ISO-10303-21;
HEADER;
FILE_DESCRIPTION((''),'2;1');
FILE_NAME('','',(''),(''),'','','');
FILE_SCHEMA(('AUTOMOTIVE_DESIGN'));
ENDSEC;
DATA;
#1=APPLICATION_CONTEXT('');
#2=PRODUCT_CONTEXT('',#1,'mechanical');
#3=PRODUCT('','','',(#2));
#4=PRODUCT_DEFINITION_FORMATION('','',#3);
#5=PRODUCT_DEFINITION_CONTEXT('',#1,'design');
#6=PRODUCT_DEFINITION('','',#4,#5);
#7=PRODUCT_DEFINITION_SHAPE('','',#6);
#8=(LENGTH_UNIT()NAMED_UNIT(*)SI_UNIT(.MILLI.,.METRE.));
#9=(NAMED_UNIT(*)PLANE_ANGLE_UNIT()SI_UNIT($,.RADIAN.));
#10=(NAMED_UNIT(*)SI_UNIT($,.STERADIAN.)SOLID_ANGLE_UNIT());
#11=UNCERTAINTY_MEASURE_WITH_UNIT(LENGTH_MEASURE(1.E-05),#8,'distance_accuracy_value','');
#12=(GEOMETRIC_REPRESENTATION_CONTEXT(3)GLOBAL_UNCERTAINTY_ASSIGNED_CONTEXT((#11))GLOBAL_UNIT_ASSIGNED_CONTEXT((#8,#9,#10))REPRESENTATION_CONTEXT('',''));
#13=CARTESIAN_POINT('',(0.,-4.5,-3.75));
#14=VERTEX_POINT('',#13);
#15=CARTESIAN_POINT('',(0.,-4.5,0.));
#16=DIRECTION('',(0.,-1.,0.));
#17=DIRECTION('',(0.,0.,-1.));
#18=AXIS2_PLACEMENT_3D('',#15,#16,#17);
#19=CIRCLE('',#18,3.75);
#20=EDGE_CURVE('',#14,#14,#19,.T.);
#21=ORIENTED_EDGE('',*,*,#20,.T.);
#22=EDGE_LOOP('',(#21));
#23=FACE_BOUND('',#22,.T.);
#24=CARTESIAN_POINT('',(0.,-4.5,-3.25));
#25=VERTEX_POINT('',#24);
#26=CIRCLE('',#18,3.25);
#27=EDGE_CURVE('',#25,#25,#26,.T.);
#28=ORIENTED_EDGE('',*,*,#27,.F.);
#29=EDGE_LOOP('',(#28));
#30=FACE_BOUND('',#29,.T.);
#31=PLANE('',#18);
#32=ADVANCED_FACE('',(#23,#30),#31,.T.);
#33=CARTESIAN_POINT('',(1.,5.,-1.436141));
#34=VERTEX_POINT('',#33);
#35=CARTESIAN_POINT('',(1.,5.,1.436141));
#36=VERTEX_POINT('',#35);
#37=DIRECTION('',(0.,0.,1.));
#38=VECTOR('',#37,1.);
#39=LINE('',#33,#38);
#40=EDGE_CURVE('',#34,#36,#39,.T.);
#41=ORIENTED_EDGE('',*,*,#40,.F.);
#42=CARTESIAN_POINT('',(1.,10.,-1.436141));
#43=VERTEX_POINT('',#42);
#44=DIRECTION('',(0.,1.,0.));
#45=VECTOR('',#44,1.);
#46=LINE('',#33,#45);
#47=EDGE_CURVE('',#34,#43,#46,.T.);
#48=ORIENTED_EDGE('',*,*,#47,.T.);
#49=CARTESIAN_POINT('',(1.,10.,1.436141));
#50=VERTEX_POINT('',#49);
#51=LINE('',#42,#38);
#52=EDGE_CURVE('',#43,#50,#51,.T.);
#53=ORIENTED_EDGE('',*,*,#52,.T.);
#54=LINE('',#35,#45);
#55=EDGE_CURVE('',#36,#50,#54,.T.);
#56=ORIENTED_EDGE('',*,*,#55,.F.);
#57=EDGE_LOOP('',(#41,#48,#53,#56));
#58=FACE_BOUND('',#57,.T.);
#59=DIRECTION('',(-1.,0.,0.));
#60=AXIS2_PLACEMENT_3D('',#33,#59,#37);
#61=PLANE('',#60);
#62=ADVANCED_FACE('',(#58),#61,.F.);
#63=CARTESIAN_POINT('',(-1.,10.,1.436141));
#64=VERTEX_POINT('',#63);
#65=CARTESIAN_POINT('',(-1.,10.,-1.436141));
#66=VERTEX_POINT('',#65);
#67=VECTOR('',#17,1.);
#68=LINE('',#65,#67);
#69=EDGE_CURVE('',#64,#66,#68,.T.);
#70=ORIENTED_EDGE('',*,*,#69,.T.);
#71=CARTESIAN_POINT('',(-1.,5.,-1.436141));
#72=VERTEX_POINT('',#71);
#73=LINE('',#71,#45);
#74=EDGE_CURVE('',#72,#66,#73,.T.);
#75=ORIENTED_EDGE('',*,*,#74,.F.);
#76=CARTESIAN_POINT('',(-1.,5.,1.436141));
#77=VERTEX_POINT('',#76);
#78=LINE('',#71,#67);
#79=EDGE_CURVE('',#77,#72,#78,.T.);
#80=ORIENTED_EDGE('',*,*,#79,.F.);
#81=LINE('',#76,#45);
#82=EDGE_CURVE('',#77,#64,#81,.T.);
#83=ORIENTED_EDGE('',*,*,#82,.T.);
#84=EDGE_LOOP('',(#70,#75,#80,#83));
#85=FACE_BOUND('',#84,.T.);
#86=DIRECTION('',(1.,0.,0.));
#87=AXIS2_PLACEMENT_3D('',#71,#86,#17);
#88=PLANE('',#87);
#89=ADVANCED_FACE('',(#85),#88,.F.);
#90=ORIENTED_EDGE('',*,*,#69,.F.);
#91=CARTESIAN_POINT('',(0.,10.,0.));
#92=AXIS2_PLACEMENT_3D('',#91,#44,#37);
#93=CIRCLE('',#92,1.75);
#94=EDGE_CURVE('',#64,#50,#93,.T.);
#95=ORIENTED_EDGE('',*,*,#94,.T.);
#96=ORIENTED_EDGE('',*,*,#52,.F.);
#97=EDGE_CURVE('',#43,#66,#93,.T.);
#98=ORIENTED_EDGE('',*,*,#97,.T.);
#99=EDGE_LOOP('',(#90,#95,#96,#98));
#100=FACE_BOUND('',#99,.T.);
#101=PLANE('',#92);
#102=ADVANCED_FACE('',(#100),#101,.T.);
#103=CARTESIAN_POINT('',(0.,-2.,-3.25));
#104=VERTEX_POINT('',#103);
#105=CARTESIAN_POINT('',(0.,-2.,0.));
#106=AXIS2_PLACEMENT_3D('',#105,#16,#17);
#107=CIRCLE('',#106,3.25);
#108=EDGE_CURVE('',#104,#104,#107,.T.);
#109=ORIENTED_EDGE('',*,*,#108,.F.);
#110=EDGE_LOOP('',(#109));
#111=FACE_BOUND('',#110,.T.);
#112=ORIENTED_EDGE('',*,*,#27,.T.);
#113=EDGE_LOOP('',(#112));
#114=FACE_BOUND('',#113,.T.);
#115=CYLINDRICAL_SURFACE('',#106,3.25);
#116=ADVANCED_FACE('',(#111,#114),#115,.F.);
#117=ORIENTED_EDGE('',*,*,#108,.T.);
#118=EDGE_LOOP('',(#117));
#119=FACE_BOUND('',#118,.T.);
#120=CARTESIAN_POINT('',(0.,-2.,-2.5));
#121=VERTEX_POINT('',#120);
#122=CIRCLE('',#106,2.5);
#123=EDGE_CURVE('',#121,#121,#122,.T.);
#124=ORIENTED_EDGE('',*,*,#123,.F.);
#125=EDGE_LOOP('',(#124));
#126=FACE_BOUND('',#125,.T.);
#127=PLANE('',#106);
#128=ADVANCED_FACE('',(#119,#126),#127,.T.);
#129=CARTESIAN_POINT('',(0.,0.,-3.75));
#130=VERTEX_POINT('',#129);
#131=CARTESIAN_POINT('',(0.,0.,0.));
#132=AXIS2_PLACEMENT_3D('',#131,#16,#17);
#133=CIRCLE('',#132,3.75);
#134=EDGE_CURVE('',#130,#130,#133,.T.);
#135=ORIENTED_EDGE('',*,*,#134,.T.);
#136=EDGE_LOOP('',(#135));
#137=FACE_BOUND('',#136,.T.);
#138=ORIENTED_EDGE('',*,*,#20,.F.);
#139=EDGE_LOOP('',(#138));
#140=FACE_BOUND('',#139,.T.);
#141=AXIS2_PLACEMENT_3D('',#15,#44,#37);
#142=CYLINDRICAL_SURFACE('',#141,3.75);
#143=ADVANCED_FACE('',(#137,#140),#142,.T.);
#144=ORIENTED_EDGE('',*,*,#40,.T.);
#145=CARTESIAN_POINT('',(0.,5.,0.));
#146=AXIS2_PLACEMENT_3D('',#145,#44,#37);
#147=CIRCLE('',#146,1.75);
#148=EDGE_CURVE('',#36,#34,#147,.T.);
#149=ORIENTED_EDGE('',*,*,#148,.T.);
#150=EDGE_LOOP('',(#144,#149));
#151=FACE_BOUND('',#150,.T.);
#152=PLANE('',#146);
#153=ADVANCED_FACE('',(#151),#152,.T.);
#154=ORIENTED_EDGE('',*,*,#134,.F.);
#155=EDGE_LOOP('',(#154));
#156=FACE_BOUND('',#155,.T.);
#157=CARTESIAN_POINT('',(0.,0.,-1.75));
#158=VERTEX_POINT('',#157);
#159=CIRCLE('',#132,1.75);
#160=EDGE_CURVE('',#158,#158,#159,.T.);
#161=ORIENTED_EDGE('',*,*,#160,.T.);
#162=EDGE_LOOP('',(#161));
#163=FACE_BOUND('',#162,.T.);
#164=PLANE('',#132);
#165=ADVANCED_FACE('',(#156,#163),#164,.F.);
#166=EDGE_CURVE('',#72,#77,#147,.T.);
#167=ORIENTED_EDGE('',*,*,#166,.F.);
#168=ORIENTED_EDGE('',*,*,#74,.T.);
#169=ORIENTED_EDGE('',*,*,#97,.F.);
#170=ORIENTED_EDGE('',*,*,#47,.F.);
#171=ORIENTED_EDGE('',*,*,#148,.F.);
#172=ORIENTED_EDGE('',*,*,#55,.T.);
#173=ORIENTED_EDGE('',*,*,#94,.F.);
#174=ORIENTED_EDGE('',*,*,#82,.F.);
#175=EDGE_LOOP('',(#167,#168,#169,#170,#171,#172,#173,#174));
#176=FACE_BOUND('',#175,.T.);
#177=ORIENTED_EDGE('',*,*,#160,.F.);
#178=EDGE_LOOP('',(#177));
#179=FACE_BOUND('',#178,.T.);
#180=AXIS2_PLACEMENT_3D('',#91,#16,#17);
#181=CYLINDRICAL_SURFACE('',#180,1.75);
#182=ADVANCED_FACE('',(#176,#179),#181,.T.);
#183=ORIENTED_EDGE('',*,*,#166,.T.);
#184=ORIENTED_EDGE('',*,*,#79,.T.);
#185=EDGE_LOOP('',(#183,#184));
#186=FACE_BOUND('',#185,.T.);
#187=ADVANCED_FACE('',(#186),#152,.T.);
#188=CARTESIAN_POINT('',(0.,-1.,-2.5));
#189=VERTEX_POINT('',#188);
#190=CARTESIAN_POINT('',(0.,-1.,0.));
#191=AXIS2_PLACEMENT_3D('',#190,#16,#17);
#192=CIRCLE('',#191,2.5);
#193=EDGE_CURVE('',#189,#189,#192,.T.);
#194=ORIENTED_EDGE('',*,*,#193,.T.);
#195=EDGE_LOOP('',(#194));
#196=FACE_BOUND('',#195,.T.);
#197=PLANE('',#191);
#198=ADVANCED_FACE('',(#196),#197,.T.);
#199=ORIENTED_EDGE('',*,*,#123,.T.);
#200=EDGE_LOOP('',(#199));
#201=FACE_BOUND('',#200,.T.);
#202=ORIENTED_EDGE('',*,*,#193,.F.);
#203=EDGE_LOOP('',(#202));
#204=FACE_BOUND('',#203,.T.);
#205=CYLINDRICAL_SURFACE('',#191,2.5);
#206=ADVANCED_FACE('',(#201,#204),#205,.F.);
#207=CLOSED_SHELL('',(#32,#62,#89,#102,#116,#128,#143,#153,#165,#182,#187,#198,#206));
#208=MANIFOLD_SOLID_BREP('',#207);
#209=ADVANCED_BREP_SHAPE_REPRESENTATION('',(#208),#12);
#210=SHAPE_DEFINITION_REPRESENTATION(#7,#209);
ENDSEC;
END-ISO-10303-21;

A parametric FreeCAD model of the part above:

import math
import FreeCAD as App
import Part
import Sketcher
Q = App.Units.Quantity

doc = App.newDocument("Part")
body = doc.addObject("PartDesign::Body", "Body")

# Sketch on XZ plane
sketch1 = body.newObject("Sketcher::SketchObject", "Sketch")
sketch1.AttachmentSupport = (doc.getObject("XZ_Plane"), [""])
sketch1.MapMode = "FlatFace"
sketch1.addGeometry(Part.Circle(App.Vector(0, 0, 0), App.Vector(0, 0, 1), 1.8), False)
sketch1.addConstraint([
    Sketcher.Constraint("Coincident", 0, 3, -1, 1),
    Sketcher.Constraint("Diameter", 0, Q("3.5 mm")),
])
pad1 = body.newObject("PartDesign::Pad", "Pad")
pad1.Profile = sketch1
pad1.Length = 10
pad1.Reversed = True

# Sketch on XZ plane
sketch2 = body.newObject("Sketcher::SketchObject", "Sketch001")
sketch2.AttachmentSupport = (doc.getObject("XZ_Plane"), [""])
sketch2.MapMode = "FlatFace"
sketch2.AttachmentOffset = App.Placement(App.Vector(0, 0, -10), App.Rotation())
sketch2.addGeometry([
    Part.LineSegment(App.Vector(-1, 1.4, 0), App.Vector(-1, -1.4, 0)),
    Part.ArcOfCircle(Part.Circle(App.Vector(0, 0, 0), App.Vector(0, 0, 1), 1.8), math.radians(125), math.radians(235)),
    Part.LineSegment(App.Vector(1, -1.4, 0), App.Vector(1, 1.4, 0)),
    Part.ArcOfCircle(Part.Circle(App.Vector(0, 0, 0), App.Vector(0, 0, 1), 1.8), math.radians(-55), math.radians(55)),
], False)
sketch2.addConstraint([
    Sketcher.Constraint("Coincident", 0, 1, 1, 1),
    Sketcher.Constraint("Coincident", 1, 2, 0, 2),
    Sketcher.Constraint("Coincident", 2, 1, 3, 1),
    Sketcher.Constraint("Coincident", 3, 2, 2, 2),
    Sketcher.Constraint("Vertical", 0),
    Sketcher.Constraint("Vertical", 2),
    Sketcher.Constraint("Coincident", 1, 3, -1, 1),
    Sketcher.Constraint("Coincident", 3, 3, -1, 1),
    Sketcher.Constraint("Equal", 1, 3),
    Sketcher.Constraint("Horizontal", 1, 2, 2, 1),
    Sketcher.Constraint("Radius", 1, Q("1.75 mm")),
    Sketcher.Constraint("DistanceX", 0, 1, -1, 1, Q("1 mm")),
])
pocket1 = body.newObject("PartDesign::Pocket", "Pocket")
pocket1.Profile = sketch2
pocket1.Length = 5
pocket1.Reversed = True

# Sketch on XZ plane
sketch3 = body.newObject("Sketcher::SketchObject", "Sketch002")
sketch3.AttachmentSupport = (doc.getObject("XZ_Plane"), [""])
sketch3.MapMode = "FlatFace"
sketch3.addGeometry(Part.Circle(App.Vector(0, 0, 0), App.Vector(0, 0, 1), 3.8), False)
sketch3.addConstraint([
    Sketcher.Constraint("Coincident", 0, 3, -1, 1),
    Sketcher.Constraint("Diameter", 0, Q("7.5 mm")),
])
pad2 = body.newObject("PartDesign::Pad", "Pad001")
pad2.Profile = sketch3
pad2.Length = 4.5

# Sketch on XZ plane
sketch4 = body.newObject("Sketcher::SketchObject", "Sketch003")
sketch4.AttachmentSupport = (doc.getObject("XZ_Plane"), [""])
sketch4.MapMode = "FlatFace"
sketch4.AttachmentOffset = App.Placement(App.Vector(0, 0, 4.5), App.Rotation())
sketch4.addGeometry(Part.Circle(App.Vector(0, 0, 0), App.Vector(0, 0, 1), 3.2), False)
sketch4.addConstraint([
    Sketcher.Constraint("Coincident", 0, 3, -1, 1),
    Sketcher.Constraint("Diameter", 0, Q("6.5 mm")),
])
pocket2 = body.newObject("PartDesign::Pocket", "Pocket001")
pocket2.Profile = sketch4
pocket2.Length = 2.5

# Sketch on XZ plane
sketch5 = body.newObject("Sketcher::SketchObject", "Sketch004")
sketch5.AttachmentSupport = (doc.getObject("XZ_Plane"), [""])
sketch5.MapMode = "FlatFace"
sketch5.AttachmentOffset = App.Placement(App.Vector(0, 0, 2), App.Rotation())
sketch5.addGeometry(Part.Circle(App.Vector(0, 0, 0), App.Vector(0, 0, 1), 2.5), False)
sketch5.addConstraint([
    Sketcher.Constraint("Coincident", 0, 3, -1, 1),
    Sketcher.Constraint("Diameter", 0, Q("5 mm")),
])
pocket3 = body.newObject("PartDesign::Pocket", "Pocket002")
pocket3.Profile = sketch5
pocket3.Length = 1

doc.recompute()
